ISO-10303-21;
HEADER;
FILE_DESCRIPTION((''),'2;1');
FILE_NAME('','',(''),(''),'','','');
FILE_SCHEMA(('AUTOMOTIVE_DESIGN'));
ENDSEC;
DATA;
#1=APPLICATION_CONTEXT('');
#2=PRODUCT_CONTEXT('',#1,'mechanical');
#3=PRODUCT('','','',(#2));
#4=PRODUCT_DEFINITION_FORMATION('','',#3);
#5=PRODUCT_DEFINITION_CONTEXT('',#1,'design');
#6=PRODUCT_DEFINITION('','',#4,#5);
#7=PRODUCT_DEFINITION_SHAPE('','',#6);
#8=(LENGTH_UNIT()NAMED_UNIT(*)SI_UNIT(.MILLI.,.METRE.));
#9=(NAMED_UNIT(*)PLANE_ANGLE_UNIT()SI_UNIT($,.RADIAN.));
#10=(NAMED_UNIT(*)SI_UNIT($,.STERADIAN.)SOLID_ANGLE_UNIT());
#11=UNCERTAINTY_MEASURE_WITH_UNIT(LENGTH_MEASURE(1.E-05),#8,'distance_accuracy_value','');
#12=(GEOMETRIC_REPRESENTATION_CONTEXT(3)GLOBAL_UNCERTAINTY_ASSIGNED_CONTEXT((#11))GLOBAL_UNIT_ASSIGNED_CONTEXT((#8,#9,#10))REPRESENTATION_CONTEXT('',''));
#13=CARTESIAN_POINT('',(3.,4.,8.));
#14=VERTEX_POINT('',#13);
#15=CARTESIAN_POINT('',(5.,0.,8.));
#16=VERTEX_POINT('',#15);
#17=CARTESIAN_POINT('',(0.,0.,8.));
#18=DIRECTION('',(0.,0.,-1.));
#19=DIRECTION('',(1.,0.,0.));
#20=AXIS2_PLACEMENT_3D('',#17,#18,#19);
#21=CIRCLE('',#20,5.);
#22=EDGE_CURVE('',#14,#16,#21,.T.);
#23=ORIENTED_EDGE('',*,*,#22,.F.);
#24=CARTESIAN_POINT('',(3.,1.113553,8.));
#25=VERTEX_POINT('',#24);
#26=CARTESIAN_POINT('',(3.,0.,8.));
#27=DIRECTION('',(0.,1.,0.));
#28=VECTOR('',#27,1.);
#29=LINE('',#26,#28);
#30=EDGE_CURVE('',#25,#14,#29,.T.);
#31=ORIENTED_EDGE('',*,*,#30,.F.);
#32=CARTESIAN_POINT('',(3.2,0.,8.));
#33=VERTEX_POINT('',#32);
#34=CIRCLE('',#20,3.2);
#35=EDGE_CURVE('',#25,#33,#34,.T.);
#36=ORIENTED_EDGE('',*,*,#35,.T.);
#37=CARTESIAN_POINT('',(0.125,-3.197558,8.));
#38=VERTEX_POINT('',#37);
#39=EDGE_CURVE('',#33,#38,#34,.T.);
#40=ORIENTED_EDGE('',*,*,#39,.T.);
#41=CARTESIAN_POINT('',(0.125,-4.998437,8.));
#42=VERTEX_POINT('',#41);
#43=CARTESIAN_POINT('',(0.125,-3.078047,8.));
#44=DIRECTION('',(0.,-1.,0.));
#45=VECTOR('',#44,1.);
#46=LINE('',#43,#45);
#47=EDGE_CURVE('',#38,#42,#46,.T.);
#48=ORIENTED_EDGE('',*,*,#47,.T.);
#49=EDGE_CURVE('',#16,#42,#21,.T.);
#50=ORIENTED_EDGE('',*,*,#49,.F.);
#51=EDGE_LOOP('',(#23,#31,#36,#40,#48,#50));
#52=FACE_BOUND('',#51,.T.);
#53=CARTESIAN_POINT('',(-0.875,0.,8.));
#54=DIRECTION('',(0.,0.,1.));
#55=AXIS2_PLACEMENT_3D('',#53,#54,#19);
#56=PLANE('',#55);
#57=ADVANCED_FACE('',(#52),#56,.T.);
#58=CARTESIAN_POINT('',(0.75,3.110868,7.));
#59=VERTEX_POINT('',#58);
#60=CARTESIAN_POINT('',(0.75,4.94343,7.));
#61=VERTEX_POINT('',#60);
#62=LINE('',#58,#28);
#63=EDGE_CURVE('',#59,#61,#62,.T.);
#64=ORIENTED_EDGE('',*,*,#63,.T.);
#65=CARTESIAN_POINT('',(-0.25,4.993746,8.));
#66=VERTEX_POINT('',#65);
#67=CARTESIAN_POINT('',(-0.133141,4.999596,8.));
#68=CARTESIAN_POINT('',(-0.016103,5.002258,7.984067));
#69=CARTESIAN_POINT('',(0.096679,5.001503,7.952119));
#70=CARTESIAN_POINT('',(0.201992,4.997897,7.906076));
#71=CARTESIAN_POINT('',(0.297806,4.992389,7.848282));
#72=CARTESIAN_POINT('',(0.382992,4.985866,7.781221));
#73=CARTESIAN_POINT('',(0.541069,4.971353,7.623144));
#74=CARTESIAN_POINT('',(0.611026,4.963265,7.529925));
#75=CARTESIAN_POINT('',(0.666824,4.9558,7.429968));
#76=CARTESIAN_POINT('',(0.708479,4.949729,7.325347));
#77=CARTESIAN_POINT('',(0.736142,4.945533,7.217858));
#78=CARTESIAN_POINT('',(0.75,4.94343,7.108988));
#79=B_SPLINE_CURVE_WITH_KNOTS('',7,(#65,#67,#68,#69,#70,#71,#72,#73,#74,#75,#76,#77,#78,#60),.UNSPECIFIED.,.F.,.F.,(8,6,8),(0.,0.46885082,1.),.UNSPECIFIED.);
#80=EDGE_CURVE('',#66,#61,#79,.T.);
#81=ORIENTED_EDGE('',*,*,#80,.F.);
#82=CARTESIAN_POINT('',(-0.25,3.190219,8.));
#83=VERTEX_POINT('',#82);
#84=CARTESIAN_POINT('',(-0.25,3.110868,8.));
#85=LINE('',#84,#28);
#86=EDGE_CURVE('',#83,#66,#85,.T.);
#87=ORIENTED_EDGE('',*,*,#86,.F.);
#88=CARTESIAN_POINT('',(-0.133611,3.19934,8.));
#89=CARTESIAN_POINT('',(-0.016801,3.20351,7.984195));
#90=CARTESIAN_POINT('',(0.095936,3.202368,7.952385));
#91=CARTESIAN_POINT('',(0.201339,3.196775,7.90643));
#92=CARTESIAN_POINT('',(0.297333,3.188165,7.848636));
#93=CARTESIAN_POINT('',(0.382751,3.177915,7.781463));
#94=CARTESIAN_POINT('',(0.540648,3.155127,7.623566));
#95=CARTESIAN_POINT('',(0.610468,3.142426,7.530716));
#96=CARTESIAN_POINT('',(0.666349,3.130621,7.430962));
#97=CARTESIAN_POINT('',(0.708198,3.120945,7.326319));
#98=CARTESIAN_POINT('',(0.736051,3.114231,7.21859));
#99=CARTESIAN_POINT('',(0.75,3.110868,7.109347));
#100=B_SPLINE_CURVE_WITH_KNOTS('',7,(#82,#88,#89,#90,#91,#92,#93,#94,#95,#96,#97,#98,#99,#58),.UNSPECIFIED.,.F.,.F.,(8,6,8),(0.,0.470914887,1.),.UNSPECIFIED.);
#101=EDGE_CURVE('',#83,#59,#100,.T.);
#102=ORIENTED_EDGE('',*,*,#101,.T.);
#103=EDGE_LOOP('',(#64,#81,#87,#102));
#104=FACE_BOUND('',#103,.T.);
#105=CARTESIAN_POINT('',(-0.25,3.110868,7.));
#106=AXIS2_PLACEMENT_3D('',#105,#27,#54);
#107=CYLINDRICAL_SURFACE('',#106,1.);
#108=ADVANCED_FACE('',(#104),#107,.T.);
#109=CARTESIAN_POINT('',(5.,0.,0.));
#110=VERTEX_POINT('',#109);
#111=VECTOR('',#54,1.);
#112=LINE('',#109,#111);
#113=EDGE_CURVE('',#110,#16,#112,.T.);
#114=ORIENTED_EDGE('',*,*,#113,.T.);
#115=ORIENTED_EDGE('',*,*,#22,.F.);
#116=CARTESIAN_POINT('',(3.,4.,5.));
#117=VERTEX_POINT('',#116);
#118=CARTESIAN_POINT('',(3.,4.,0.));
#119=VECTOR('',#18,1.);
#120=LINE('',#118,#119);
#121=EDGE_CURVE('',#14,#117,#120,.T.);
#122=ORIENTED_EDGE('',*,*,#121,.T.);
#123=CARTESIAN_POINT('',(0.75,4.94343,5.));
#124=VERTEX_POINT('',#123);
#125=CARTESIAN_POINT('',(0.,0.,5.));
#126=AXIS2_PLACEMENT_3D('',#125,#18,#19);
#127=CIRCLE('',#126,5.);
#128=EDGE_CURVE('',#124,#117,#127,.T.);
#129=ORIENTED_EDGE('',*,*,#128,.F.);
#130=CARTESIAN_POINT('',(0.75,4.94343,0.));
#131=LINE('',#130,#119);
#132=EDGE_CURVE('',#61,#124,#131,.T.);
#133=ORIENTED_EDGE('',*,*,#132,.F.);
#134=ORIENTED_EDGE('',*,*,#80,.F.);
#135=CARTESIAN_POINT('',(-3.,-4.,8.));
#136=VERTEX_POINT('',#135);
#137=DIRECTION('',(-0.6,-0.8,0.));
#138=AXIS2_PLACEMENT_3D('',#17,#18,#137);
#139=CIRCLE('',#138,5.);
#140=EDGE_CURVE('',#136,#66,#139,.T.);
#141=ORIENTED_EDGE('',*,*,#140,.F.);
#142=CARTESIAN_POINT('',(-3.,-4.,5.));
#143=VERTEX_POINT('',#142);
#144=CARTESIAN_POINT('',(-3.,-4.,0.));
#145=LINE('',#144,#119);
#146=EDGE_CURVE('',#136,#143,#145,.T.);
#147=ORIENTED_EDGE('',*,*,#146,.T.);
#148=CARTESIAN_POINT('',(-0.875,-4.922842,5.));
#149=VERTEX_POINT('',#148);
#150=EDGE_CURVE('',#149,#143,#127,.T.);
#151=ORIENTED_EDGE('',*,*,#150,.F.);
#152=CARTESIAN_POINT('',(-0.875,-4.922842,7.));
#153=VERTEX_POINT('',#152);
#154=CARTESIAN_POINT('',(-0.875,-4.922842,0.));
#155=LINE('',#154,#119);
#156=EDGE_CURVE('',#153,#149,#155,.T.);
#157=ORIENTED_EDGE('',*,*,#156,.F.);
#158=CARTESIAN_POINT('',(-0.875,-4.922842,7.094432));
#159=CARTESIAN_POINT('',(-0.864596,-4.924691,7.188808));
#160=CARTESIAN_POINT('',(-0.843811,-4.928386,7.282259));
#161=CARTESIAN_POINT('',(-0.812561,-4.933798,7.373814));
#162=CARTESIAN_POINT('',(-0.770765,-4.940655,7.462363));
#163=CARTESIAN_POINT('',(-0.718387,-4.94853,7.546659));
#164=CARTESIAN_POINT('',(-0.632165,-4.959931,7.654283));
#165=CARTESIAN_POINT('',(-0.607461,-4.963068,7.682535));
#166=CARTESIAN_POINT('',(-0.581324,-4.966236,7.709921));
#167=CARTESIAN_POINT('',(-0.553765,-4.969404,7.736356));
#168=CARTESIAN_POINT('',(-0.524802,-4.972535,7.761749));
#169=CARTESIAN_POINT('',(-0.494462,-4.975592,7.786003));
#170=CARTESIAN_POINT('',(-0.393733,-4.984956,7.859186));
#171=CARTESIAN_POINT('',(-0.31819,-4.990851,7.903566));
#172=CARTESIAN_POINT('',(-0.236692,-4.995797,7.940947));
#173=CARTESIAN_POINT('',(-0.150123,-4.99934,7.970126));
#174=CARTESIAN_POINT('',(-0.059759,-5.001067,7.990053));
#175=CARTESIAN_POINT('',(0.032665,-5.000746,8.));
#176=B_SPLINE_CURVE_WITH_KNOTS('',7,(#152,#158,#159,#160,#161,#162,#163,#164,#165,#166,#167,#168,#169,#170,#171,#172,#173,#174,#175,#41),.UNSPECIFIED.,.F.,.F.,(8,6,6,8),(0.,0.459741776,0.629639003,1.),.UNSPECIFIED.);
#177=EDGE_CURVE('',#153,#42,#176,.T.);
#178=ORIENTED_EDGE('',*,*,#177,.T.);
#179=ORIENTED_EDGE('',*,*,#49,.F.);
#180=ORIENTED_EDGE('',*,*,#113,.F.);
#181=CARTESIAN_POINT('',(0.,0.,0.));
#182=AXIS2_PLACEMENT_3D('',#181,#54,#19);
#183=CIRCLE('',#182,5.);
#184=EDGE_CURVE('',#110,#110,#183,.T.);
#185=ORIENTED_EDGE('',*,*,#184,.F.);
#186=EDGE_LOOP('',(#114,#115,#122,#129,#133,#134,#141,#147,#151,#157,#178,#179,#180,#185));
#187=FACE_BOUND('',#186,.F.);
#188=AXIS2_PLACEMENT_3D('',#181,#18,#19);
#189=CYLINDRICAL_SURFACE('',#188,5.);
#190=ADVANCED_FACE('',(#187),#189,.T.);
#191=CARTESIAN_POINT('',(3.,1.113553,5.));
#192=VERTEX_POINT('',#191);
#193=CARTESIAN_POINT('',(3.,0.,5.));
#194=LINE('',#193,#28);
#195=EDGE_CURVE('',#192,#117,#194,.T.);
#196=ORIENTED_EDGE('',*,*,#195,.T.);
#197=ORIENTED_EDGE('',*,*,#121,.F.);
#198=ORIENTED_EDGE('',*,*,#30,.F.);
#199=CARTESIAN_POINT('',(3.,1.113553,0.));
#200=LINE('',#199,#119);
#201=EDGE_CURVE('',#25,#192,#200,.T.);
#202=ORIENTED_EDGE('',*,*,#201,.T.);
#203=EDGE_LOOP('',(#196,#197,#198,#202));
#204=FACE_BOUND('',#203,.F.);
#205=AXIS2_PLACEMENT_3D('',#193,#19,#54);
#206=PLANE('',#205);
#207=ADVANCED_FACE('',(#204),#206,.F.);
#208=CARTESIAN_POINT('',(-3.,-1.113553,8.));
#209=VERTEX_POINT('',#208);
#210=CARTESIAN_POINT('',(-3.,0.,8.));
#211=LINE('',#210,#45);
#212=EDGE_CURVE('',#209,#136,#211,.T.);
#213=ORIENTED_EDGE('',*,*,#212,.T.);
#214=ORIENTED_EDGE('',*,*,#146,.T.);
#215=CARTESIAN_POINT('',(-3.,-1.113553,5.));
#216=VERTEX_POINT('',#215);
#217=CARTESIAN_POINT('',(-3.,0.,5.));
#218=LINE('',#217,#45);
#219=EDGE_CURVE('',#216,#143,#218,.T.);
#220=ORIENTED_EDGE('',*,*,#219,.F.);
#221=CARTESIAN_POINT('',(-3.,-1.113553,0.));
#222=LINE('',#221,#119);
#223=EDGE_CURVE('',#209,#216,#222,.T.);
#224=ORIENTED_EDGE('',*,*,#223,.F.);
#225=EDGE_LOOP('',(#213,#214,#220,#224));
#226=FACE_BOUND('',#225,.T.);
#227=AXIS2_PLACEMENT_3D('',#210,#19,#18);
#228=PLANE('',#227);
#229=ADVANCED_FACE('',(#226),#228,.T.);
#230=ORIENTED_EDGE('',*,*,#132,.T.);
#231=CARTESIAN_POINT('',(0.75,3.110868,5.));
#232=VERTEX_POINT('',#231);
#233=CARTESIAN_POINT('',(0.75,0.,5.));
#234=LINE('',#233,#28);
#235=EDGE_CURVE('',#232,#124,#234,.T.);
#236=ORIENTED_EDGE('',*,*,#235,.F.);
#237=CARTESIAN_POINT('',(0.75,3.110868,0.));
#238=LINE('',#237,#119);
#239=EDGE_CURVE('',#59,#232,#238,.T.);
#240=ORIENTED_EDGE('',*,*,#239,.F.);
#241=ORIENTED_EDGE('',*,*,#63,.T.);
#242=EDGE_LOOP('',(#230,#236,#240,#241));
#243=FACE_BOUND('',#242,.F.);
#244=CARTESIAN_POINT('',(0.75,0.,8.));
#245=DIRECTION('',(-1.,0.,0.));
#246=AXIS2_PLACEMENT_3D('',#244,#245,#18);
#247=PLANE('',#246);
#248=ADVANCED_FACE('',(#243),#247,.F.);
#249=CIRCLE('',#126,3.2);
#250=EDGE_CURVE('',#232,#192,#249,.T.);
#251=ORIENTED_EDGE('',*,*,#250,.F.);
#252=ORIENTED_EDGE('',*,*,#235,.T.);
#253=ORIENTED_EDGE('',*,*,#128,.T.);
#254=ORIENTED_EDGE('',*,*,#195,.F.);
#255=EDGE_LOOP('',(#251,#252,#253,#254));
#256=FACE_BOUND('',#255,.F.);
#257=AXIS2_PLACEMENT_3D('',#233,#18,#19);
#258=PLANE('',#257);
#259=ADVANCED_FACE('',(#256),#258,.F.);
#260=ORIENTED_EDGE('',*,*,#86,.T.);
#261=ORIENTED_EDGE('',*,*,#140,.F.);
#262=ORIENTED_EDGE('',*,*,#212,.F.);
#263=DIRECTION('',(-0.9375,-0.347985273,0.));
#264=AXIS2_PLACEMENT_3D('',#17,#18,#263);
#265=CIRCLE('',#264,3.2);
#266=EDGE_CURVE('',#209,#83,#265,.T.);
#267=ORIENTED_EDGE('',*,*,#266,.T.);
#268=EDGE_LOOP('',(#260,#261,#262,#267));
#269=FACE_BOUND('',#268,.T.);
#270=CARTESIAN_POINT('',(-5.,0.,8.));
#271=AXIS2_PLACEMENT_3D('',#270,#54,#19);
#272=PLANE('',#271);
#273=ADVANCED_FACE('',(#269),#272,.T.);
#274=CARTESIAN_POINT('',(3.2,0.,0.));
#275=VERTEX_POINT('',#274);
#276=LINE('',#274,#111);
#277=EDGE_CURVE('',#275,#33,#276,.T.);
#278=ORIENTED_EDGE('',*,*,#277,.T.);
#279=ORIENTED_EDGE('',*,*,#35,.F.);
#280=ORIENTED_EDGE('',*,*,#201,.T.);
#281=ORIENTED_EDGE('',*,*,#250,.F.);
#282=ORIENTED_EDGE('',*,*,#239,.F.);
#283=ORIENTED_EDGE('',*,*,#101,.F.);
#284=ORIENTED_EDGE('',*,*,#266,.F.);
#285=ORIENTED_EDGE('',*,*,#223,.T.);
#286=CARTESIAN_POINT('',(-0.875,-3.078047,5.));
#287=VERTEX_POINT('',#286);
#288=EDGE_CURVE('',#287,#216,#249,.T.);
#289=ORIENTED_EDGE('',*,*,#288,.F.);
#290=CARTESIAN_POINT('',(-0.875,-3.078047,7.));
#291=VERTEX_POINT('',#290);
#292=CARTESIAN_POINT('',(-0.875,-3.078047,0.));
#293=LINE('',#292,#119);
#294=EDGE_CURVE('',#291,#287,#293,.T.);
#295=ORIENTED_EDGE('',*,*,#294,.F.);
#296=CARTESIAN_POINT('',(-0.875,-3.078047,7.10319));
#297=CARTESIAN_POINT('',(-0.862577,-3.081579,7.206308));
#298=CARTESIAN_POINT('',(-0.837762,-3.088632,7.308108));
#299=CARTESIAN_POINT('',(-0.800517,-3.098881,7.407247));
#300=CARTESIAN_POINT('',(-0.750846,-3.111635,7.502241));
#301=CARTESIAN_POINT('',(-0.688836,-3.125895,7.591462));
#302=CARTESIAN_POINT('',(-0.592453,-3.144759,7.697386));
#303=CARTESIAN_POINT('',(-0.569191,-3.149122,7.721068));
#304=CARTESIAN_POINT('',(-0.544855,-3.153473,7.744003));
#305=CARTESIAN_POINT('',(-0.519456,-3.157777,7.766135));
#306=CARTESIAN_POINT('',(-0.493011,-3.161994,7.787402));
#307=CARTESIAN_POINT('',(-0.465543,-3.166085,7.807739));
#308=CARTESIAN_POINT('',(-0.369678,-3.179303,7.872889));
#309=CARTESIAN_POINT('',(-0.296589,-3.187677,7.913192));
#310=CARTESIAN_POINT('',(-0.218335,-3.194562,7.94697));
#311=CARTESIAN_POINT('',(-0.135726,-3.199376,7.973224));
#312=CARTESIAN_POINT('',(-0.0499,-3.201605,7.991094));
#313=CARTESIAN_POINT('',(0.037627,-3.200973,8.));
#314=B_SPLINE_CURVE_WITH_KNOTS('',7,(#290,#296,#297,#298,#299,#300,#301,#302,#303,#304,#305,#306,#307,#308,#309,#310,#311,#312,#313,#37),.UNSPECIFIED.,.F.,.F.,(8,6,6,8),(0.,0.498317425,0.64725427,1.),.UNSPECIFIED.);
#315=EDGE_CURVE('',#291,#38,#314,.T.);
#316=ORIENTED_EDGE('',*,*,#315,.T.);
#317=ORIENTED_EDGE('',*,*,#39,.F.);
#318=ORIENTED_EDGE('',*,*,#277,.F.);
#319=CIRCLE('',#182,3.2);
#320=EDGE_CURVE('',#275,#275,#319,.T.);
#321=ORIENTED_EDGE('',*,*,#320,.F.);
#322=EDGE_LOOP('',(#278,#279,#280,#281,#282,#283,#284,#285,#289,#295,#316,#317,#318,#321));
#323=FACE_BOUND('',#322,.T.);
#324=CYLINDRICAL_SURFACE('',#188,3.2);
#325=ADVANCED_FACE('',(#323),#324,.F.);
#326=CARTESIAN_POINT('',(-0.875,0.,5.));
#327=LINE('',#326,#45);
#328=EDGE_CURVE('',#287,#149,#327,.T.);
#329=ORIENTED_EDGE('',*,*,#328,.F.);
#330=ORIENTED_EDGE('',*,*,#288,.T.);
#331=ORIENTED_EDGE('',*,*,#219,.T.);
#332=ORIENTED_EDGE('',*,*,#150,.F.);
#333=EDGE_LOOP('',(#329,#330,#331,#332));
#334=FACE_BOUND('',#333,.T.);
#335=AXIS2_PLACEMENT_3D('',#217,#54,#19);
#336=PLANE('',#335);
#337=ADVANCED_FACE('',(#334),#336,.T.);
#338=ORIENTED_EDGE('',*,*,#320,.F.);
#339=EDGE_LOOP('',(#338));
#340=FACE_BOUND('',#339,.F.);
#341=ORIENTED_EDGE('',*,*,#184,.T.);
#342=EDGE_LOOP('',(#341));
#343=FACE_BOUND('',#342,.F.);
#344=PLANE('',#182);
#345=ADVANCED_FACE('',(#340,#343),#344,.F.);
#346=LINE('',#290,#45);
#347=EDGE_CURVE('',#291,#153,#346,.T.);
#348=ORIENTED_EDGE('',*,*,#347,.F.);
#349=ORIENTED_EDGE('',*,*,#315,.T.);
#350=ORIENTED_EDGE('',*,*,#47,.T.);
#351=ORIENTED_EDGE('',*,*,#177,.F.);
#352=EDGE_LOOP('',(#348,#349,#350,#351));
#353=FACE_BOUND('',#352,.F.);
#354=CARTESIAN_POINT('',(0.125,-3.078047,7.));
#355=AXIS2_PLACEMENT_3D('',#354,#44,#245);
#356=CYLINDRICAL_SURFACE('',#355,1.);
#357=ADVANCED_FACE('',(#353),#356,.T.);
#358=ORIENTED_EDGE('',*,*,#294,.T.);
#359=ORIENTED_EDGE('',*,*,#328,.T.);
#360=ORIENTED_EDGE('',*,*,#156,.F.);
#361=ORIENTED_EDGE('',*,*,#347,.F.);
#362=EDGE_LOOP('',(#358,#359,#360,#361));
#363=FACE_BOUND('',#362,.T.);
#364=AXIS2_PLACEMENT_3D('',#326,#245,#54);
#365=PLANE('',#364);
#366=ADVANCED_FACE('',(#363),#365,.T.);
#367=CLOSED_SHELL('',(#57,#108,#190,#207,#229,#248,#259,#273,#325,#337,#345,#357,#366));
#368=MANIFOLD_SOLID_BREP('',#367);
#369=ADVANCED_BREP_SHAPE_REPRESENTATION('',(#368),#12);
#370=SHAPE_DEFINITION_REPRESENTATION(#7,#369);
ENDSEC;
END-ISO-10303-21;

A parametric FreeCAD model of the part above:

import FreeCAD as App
import Part
import Sketcher
from FreeCAD import Vector


def edges_at(feature, points):
    """Names of the edges that pass closest to the given points."""
    edges = feature.Shape.Edges
    near = lambda p: min(range(len(edges)), key=lambda i: edges[i].distToShape(Part.Vertex(*p))[0])
    return sorted({f"Edge{near(p) + 1}" for p in points})


def add_polygon(sketch, points):
    """Adds a closed chain of lines whose ends are joined by coincident constraints."""
    first, n = sketch.GeometryCount, len(points)
    for a, b in zip(points, points[1:] + points[:1]):
        sketch.addGeometry(Part.LineSegment(App.Vector(*a, 0), App.Vector(*b, 0)), False)
    for i in range(n):
        sketch.addConstraint(Sketcher.Constraint("Coincident", first + i, 2, first + (i + 1) % n, 1))

doc = App.newDocument("Part")
params = doc.addObject("Spreadsheet::Sheet", "Params")
for row, (alias, value) in enumerate([
    ("sketch1_width", "2 mm"),
    ("sketch1_width2", "10 mm"),
    ("sketch1_height", "3 mm"),
    ("sketch1_height2", "4 mm"),
    ("sketch1_width3", "5.75 mm"),
    ("pad1_length", "10 mm"),
    ("sketch2_width", "10 mm"),
    ("sketch2_width2", "2 mm"),
    ("sketch2_height", "4 mm"),
    ("sketch2_height2", "3 mm"),
    ("pad2_length", "10 mm"),
    ("sketch3_diameter", "10 mm"),
    ("sketch3_diameter2", "6.4 mm"),
    ("pad3_length", "12 mm"),
    ("fillet_radius", "1 mm"),
], start=1):
    params.set(f"A{row}", alias)
    params.set(f"B{row}", "=" + value)
    params.setAlias(f"B{row}", alias)

body = doc.addObject("PartDesign::Body", "Body")

sketch1 = doc.addObject("Sketcher::SketchObject", "Sketch")
body.addObject(sketch1)
sketch1.AttachmentSupport = (doc.XZ_Plane, [""])
sketch1.MapMode = "FlatFace"
add_polygon(sketch1, [(-5, 8), (0.8, 8), (0.8, 5), (3, 5), (3, 8), (5, 8), (5, 12), (-5, 12)])
sketch1.addConstraint([
    Sketcher.Constraint("Horizontal", 0),
    Sketcher.Constraint("Vertical", 1),
    Sketcher.Constraint("Horizontal", 2),
    Sketcher.Constraint("Vertical", 3),
    Sketcher.Constraint("Horizontal", 4),
    Sketcher.Constraint("Vertical", 5),
    Sketcher.Constraint("Horizontal", 6),
    Sketcher.Constraint("Vertical", 7),
    Sketcher.Constraint("Symmetric", 4, 2, 7, 2, -2),
    Sketcher.Constraint("DistanceX", 4, 1, 4, 2, 2.0),
    Sketcher.Constraint("DistanceX", 6, 2, 6, 1, 10.0),
    Sketcher.Constraint("DistanceY", 1, 2, 1, 1, 3.0),
    Sketcher.Constraint("DistanceY", 5, 1, 5, 2, 4.0),
    Sketcher.Constraint("DistanceY", -1, 1, 0, 2, 8.0),
    Sketcher.Constraint("DistanceX", 0, 1, 0, 2, 5.75),
])
sketch1.setExpression("Constraints[17]", "Params.sketch1_width")
sketch1.setExpression("Constraints[18]", "Params.sketch1_width2")
sketch1.setExpression("Constraints[19]", "Params.sketch1_height")
sketch1.setExpression("Constraints[20]", "Params.sketch1_height2")
sketch1.setExpression("Constraints[22]", "Params.sketch1_width3")
pad1 = doc.addObject("PartDesign::Pad", "Pad")
body.addObject(pad1)
pad1.Profile = sketch1
pad1.setExpression("Length", "Params.pad1_length")
pad1.Reversed = True
body2 = doc.addObject("PartDesign::Body", "Body001")

sketch2 = doc.addObject("Sketcher::SketchObject", "Sketch001")
body2.addObject(sketch2)
sketch2.AttachmentSupport = (doc.getObject("XZ_Plane001"), [""])
sketch2.MapMode = "FlatFace"
add_polygon(sketch2, [(5, 8), (5, 12), (-5, 12), (-5, 8), (-3, 8), (-3, 5), (-0.9, 5), (-0.9, 8)])
sketch2.addConstraint([
    Sketcher.Constraint("Vertical", 0),
    Sketcher.Constraint("Horizontal", 1),
    Sketcher.Constraint("Vertical", 2),
    Sketcher.Constraint("Horizontal", 3),
    Sketcher.Constraint("Vertical", 4),
    Sketcher.Constraint("Horizontal", 5),
    Sketcher.Constraint("Vertical", 6),
    Sketcher.Constraint("Horizontal", 7),
    Sketcher.Constraint("Symmetric", 2, 2, 7, 2, -2),
    Sketcher.Constraint("DistanceX", 1, 2, 1, 1, 10.0),
    Sketcher.Constraint("DistanceX", 3, 1, 3, 2, 2.0),
    Sketcher.Constraint("DistanceY", 0, 1, 0, 2, 4.0),
    Sketcher.Constraint("DistanceY", 4, 2, 4, 1, 3.0),
    Sketcher.Constraint("DistanceY", -1, 1, 0, 2, 12.0),
    Sketcher.Constraint("DistanceX", 5, 1, 5, 2, 2.125),
])
sketch2.setExpression("Constraints[17]", "Params.sketch2_width")
sketch2.setExpression("Constraints[18]", "Params.sketch2_width2")
sketch2.setExpression("Constraints[19]", "Params.sketch2_height")
sketch2.setExpression("Constraints[20]", "Params.sketch2_height2")
pad2 = doc.addObject("PartDesign::Pad", "Pad001")
body2.addObject(pad2)
pad2.Profile = sketch2
pad2.setExpression("Length", "Params.pad2_length")
body3 = doc.addObject("PartDesign::Body", "Body002")

sketch3 = doc.addObject("Sketcher::SketchObject", "Sketch002")
body3.addObject(sketch3)
sketch3.AttachmentSupport = (doc.getObject("XY_Plane002"), [""])
sketch3.MapMode = "FlatFace"
sketch3.addGeometry([
    Part.Circle(Vector(0, 0, 0), Vector(0, 0, 1), 5),
    Part.Circle(Vector(0, 0, 0), Vector(0, 0, 1), 3.2),
], False)
sketch3.addConstraint([
    Sketcher.Constraint("Coincident", 0, 3, -1, 1),
    Sketcher.Constraint("Coincident", 1, 3, -1, 1),
    Sketcher.Constraint("Diameter", 0, 10.0),
    Sketcher.Constraint("Diameter", 1, 6.4),
])
sketch3.setExpression("Constraints[2]", "Params.sketch3_diameter")
sketch3.setExpression("Constraints[3]", "Params.sketch3_diameter2")
pad3 = doc.addObject("PartDesign::Pad", "Pad002")
body3.addObject(pad3)
pad3.Profile = sketch3
pad3.setExpression("Length", "Params.pad3_length")
doc.recompute()

boolean = doc.addObject("PartDesign::Boolean", "Boolean")
body3.addObject(boolean)
boolean.Type = "Cut"
boolean.addObjects([body2])
doc.recompute()

boolean2 = doc.addObject("PartDesign::Boolean", "Boolean001")
body3.addObject(boolean2)
boolean2.Type = "Cut"
boolean2.addObjects([body])
doc.recompute()

fillet = doc.addObject("PartDesign::Fillet", "Fillet")
body3.addObject(fillet)
fillet.Base = (boolean2, edges_at(boolean2, [(-0.875, -4, 8), (0.75, 4.027, 8)]))
fillet.setExpression("Radius", "Params.fillet_radius")

doc.recompute()
